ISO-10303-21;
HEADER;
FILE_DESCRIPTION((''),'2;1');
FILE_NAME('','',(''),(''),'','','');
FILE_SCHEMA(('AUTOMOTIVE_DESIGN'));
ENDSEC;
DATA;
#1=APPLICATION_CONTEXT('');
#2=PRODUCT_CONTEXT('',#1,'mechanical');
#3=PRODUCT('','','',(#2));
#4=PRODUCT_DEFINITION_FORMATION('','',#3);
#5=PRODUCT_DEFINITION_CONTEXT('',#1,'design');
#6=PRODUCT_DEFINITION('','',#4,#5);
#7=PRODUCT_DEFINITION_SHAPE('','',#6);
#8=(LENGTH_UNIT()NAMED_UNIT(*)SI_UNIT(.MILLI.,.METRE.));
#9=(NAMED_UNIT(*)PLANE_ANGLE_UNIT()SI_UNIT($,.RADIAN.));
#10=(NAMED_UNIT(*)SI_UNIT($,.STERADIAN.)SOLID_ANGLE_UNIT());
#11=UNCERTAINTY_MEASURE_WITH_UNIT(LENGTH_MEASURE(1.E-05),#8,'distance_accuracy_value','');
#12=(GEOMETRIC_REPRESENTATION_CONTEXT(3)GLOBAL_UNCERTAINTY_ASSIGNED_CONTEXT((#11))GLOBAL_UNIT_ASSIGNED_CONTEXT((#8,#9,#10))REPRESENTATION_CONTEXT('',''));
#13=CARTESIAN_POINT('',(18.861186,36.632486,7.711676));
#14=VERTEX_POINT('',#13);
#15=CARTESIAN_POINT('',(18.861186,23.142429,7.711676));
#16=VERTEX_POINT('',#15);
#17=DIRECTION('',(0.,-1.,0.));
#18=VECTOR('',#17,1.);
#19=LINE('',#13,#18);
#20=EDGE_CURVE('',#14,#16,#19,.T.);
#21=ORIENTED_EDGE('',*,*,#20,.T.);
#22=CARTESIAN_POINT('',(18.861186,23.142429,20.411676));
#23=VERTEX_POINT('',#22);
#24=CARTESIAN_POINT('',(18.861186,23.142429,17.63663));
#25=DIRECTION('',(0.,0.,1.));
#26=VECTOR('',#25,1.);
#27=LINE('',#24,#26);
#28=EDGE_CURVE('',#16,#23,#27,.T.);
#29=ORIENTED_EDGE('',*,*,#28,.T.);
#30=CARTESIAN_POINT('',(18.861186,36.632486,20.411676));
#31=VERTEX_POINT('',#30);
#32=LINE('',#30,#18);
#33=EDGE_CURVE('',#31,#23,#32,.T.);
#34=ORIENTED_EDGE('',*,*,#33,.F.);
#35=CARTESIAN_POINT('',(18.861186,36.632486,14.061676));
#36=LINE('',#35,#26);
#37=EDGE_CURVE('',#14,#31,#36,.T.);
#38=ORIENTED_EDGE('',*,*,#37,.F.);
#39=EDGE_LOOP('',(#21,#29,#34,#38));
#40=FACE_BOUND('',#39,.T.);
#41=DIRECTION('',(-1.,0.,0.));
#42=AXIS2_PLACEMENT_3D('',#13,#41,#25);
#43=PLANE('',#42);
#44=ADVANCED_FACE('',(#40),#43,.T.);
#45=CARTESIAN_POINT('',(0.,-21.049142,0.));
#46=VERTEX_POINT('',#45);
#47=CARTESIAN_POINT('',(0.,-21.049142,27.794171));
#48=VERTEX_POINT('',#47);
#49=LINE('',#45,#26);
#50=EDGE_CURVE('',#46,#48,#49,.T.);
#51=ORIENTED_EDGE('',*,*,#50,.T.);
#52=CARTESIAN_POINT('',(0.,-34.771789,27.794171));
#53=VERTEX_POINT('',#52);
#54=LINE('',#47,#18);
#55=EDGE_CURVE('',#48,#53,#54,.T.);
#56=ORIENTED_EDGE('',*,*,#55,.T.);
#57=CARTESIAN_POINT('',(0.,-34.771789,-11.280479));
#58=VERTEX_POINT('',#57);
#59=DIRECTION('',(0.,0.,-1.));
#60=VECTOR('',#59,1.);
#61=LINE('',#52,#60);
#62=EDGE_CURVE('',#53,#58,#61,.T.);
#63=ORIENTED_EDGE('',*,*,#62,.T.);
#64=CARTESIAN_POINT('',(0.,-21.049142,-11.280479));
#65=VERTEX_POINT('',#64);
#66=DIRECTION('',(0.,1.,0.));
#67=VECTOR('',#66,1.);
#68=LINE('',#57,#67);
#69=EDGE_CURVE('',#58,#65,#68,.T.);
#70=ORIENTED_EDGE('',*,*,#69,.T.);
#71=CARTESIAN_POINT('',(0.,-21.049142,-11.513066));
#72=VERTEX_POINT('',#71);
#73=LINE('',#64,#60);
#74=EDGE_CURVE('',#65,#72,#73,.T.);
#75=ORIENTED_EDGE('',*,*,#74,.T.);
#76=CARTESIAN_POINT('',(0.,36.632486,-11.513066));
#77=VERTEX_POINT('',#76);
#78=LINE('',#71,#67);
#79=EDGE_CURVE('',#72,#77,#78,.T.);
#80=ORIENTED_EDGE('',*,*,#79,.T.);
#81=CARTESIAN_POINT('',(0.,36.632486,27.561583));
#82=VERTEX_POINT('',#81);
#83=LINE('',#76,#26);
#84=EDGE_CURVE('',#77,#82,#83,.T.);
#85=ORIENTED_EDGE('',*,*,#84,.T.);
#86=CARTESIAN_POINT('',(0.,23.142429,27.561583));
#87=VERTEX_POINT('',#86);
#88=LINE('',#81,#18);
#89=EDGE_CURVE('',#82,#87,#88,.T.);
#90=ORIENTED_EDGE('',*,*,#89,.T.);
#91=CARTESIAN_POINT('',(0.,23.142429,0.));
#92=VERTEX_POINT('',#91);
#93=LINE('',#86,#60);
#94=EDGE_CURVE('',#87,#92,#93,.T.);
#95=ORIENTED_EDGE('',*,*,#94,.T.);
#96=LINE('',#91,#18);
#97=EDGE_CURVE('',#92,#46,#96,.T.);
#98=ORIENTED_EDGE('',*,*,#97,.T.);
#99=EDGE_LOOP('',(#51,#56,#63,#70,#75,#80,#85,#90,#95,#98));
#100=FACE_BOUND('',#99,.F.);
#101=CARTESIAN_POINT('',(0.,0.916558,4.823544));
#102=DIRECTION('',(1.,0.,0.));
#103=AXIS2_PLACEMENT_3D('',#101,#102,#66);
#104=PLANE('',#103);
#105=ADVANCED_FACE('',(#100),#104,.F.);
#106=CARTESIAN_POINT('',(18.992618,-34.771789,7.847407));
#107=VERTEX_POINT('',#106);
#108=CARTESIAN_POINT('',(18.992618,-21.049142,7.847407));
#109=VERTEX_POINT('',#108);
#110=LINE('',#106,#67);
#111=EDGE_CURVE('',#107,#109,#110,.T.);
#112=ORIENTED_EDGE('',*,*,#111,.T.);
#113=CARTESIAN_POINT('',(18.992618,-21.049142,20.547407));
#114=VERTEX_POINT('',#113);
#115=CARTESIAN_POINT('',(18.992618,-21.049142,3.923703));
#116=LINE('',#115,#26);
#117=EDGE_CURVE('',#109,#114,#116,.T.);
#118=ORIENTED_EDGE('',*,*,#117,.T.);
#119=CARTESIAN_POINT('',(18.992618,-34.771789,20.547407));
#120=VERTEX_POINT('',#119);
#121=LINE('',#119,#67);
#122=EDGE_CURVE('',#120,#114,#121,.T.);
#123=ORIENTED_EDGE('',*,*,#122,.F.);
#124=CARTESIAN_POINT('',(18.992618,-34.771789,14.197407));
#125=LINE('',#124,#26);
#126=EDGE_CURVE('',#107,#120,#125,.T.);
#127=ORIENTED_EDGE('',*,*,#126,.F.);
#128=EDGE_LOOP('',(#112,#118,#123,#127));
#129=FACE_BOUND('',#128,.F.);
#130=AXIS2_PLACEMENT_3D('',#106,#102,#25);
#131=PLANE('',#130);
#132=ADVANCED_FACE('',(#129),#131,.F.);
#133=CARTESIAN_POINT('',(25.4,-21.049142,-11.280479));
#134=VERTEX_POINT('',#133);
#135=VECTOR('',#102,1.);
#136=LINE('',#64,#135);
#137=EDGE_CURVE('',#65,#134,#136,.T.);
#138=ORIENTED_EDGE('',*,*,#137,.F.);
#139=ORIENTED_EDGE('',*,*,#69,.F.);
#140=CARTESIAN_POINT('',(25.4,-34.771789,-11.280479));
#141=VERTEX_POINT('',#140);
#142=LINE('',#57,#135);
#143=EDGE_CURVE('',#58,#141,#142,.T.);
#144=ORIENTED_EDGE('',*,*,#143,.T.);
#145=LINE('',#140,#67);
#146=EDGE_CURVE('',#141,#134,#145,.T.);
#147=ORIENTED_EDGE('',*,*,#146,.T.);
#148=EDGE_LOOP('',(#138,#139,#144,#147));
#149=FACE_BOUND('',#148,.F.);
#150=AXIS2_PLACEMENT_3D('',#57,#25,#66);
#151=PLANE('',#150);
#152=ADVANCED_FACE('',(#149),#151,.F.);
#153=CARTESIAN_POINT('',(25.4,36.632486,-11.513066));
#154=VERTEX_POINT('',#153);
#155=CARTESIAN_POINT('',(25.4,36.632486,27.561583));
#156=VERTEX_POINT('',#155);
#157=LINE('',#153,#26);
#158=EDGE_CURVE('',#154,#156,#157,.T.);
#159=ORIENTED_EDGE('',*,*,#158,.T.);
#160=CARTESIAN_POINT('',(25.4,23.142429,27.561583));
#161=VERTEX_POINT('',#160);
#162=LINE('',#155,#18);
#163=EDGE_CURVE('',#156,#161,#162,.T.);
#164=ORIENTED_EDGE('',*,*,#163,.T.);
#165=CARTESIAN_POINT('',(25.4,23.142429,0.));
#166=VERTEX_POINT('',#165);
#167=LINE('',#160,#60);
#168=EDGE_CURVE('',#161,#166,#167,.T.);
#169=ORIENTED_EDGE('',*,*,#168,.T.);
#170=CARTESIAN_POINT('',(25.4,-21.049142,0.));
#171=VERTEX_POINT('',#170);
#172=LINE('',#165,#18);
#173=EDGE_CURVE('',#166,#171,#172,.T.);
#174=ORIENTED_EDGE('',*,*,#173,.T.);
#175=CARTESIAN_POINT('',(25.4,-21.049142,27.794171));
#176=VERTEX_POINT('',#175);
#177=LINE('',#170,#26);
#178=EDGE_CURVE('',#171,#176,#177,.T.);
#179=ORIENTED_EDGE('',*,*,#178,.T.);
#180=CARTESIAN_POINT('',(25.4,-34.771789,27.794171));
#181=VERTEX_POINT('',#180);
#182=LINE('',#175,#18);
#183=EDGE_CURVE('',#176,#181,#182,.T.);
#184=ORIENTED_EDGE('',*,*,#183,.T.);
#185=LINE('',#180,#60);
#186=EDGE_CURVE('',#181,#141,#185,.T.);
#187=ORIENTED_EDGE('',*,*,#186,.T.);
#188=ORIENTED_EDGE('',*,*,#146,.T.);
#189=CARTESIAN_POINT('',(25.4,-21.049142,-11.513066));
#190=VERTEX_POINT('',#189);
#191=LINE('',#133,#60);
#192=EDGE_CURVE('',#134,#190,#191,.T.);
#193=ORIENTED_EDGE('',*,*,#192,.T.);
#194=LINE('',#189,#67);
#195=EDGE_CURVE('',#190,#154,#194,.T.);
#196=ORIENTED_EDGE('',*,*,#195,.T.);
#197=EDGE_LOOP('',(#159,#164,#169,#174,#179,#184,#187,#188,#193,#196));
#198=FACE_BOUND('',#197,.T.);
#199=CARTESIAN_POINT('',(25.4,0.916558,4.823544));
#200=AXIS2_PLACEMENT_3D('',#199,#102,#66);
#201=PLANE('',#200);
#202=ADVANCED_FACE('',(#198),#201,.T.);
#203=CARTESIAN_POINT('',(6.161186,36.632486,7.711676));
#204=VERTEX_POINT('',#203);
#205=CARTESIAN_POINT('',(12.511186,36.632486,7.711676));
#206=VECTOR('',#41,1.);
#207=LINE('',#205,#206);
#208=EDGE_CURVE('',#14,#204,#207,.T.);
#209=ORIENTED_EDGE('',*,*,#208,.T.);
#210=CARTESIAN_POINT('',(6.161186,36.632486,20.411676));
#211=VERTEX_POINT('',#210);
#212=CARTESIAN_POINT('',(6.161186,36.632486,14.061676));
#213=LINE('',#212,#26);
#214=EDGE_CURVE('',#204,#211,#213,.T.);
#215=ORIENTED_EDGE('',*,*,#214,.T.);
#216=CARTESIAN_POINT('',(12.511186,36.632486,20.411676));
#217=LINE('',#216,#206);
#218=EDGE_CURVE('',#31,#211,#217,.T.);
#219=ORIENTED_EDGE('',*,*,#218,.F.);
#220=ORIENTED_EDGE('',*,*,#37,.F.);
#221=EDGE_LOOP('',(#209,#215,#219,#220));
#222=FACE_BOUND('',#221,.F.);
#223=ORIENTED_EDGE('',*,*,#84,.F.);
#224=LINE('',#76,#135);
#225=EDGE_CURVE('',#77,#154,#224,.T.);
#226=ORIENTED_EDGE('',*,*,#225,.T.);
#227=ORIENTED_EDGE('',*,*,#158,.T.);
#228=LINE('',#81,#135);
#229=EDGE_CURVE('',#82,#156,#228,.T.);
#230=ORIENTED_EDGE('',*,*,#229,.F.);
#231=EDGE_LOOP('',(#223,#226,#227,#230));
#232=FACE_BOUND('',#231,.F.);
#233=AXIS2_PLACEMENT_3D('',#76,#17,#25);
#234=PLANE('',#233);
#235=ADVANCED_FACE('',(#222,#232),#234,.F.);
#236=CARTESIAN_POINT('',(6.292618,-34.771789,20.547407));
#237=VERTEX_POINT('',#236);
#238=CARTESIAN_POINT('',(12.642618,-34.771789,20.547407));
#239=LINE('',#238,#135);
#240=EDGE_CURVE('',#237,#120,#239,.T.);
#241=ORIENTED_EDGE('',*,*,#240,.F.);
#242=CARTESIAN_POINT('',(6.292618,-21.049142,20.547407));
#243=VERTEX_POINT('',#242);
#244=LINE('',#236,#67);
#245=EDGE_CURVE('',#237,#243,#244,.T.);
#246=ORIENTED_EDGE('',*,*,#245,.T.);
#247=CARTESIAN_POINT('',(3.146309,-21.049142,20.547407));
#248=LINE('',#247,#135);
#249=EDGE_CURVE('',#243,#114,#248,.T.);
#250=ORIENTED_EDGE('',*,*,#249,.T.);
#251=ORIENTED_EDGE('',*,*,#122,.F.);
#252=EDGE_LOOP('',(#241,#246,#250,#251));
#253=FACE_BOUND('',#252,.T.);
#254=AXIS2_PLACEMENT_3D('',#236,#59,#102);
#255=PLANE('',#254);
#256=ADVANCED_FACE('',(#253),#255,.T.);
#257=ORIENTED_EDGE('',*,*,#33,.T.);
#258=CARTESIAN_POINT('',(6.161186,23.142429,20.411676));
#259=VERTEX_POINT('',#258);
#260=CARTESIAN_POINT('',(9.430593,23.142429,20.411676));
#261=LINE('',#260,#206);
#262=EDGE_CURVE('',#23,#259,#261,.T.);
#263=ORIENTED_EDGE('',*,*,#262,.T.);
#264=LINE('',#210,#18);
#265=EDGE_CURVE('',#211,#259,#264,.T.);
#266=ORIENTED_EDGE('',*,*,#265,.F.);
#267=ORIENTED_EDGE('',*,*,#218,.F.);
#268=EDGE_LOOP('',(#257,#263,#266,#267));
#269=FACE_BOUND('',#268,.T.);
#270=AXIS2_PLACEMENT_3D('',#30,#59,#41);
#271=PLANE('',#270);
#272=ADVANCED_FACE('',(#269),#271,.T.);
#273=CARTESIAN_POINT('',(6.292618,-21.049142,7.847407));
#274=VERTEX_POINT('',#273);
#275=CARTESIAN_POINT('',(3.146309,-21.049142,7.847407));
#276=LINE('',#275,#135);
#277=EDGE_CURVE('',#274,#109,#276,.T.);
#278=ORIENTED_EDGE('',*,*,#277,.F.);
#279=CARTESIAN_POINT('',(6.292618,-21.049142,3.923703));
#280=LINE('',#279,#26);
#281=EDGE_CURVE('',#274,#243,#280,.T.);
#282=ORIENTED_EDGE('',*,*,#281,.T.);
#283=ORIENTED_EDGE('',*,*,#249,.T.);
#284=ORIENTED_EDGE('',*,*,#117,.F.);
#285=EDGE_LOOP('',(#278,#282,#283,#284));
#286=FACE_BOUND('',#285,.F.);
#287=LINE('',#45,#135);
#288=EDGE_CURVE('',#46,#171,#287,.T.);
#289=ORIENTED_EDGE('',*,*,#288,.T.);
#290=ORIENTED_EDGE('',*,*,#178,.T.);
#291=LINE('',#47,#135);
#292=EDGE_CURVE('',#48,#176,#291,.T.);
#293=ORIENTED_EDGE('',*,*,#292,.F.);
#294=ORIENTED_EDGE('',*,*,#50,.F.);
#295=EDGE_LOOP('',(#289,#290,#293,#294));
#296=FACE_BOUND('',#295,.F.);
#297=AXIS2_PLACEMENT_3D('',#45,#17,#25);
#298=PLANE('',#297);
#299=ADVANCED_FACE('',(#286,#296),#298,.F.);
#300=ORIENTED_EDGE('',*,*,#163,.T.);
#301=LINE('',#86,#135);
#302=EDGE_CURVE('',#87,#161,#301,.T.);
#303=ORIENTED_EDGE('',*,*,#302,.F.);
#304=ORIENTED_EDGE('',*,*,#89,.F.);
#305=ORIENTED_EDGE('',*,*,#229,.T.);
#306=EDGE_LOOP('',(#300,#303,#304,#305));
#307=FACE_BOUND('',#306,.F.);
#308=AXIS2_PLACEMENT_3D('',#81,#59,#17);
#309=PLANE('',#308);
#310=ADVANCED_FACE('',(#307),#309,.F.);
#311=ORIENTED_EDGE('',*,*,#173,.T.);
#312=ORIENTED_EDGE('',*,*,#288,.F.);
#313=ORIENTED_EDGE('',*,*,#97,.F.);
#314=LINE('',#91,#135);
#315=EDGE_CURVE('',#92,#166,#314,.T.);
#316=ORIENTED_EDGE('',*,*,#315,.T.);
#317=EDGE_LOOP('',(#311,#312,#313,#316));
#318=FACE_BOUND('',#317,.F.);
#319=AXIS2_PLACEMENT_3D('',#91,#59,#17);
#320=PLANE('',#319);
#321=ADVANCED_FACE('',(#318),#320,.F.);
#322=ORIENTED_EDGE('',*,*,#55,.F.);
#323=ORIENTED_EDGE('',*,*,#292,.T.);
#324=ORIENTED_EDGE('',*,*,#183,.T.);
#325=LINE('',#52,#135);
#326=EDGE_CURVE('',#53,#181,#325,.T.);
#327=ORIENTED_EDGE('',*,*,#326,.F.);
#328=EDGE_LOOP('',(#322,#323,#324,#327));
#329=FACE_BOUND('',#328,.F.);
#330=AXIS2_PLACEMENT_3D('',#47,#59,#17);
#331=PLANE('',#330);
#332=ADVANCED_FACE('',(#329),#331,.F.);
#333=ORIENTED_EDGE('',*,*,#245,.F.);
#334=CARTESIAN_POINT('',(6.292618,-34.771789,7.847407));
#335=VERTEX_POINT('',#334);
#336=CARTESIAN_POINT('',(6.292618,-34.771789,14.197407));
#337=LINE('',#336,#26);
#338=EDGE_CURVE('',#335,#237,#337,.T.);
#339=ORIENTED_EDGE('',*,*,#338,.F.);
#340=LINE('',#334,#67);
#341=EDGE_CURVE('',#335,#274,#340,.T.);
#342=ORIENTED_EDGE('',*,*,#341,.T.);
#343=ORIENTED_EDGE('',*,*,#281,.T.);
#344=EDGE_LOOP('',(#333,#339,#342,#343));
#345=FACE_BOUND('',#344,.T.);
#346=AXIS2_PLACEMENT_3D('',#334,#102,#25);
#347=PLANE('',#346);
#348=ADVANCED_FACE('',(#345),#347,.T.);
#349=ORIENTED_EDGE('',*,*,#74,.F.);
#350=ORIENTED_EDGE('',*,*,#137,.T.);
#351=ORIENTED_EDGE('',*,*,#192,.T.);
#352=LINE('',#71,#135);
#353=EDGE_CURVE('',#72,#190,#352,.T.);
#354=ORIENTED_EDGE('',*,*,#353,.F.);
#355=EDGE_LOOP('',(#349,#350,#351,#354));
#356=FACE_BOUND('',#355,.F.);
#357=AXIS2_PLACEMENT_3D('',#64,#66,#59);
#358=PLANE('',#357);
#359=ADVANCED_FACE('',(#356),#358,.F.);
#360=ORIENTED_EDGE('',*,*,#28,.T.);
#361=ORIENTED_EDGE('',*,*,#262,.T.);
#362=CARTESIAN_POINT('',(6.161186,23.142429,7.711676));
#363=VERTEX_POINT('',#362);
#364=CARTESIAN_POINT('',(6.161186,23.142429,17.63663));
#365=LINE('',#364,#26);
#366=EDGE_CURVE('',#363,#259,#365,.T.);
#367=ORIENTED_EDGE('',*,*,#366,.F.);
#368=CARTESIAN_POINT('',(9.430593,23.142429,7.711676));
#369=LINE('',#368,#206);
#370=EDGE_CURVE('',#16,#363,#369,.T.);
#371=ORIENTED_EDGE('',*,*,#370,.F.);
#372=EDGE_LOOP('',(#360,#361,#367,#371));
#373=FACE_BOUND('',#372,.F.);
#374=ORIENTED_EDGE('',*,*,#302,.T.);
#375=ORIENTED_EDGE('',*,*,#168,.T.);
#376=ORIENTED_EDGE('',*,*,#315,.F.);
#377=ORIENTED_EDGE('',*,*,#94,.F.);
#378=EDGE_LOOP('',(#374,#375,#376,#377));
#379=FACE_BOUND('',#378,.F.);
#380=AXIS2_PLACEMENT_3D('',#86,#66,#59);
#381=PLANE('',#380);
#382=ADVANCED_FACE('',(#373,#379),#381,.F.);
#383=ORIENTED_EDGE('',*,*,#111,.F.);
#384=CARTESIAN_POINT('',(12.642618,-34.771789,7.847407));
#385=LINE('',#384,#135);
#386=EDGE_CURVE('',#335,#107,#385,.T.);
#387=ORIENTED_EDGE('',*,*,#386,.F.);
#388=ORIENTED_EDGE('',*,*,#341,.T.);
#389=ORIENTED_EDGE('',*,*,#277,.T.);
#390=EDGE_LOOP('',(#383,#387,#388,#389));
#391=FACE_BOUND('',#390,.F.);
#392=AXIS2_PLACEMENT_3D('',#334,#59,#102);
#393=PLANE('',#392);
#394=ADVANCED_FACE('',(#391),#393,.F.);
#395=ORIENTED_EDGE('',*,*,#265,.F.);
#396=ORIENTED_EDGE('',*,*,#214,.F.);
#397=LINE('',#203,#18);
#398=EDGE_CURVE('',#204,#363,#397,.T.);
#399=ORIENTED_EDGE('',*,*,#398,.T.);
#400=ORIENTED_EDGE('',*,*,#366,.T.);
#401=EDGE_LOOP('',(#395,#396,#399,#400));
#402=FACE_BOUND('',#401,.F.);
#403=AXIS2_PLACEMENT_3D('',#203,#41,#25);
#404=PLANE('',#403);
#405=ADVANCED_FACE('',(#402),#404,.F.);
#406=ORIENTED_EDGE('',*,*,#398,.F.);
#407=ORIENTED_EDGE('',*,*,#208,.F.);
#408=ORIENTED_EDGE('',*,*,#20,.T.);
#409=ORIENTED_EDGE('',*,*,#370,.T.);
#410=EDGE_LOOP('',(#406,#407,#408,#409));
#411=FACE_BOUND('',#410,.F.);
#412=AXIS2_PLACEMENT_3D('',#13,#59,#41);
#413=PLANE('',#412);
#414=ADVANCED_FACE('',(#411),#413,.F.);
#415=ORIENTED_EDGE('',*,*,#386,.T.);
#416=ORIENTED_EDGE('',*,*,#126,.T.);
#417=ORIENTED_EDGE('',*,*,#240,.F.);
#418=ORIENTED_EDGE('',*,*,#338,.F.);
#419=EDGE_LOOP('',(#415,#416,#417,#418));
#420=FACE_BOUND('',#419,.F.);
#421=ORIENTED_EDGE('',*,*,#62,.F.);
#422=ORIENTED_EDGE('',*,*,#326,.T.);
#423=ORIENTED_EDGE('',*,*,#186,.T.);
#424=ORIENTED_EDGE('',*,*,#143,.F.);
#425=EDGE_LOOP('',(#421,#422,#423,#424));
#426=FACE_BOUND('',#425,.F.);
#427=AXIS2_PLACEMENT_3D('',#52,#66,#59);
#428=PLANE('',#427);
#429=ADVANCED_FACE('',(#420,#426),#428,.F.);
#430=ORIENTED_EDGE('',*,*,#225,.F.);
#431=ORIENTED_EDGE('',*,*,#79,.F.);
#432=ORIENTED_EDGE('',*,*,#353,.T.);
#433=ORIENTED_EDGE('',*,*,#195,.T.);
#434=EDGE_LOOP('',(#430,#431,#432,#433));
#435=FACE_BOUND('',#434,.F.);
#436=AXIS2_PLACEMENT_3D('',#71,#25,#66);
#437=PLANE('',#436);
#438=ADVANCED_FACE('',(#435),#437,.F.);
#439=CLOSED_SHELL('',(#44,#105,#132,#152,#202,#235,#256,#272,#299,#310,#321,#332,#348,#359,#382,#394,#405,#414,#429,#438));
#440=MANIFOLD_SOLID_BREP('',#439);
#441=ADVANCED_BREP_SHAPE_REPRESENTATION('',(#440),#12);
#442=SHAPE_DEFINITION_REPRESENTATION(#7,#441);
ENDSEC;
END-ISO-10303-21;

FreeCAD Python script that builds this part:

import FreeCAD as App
import Part
import Sketcher

V = App.Vector
Q = App.Units.Quantity


def add_polygon(sketch, points):
    """Adds a closed chain of lines whose ends are joined by coincident constraints."""
    first, n = sketch.GeometryCount, len(points)
    for a, b in zip(points, points[1:] + points[:1]):
        sketch.addGeometry(Part.LineSegment(App.Vector(*a, 0), App.Vector(*b, 0)), False)
    for i in range(n):
        sketch.addConstraint(Sketcher.Constraint("Coincident", first + i, 2, first + (i + 1) % n, 1))

doc = App.newDocument("Part")
body = doc.addObject("PartDesign::Body", "Body")

sketch1 = body.newObject("Sketcher::SketchObject", "Sketch")
sketch1.AttachmentSupport = (doc.getObject("YZ_Plane"), [""])
sketch1.MapMode = "FlatFace"
add_polygon(sketch1, [(-21.049142, 27.794171), (-34.771789, 27.794171), (-34.771789, -11.280479), (-21.049142, -11.280479), (-21.049142, -11.513066), (36.632486, -11.513066), (36.632486, 27.561583), (23.142429, 27.561583), (23.142429, 0), (-21.049142, 0)])
sketch1.addConstraint(Sketcher.Constraint("Horizontal", 0))
sketch1.addConstraint(Sketcher.Constraint("Vertical", 1))
sketch1.addConstraint(Sketcher.Constraint("Horizontal", 2))
sketch1.addConstraint(Sketcher.Constraint("Vertical", 3))
sketch1.addConstraint(Sketcher.Constraint("Horizontal", 4))
sketch1.addConstraint(Sketcher.Constraint("Vertical", 5))
sketch1.addConstraint(Sketcher.Constraint("Horizontal", 6))
sketch1.addConstraint(Sketcher.Constraint("Vertical", 7))
sketch1.addConstraint(Sketcher.Constraint("Horizontal", 8))
sketch1.addConstraint(Sketcher.Constraint("Vertical", 9))
sketch1.addConstraint(Sketcher.Constraint("PointOnObject", 7, 2, -1))
sketch1.addConstraint(Sketcher.Constraint("Vertical", 3, 2, 8, 2))
sketch1.addConstraint(Sketcher.Constraint("Equal", 1, 5))
sketch1.addConstraint(Sketcher.Constraint("DistanceX", 4, 1, 4, 2, 57.681628))
sketch1.addConstraint(Sketcher.Constraint("DistanceX", 8, 2, 8, 1, 44.191571))
sketch1.addConstraint(Sketcher.Constraint("DistanceY", 1, 2, 1, 1, 39.07465))
sketch1.addConstraint(Sketcher.Constraint("DistanceY", 9, 1, 9, 2, 27.794171))
sketch1.addConstraint(Sketcher.Constraint("DistanceX", 0, 2, 0, 1, 13.722647))
sketch1.addConstraint(Sketcher.Constraint("DistanceY", 3, 2, 3, 1, 0.232587))
sketch1.addConstraint(Sketcher.Constraint("DistanceX", 0, 2, -1, 1, 34.771789))
pad1 = body.newObject("PartDesign::Pad", "Pad")
pad1.Profile = sketch1
pad1.Length = Q("1 in")

sketch2 = body.newObject("Sketcher::SketchObject", "Sketch001")
sketch2.AttachmentSupport = (doc.getObject("YZ_Plane"), [""])
sketch2.MapMode = "FlatFace"
add_polygon(sketch2, [(-21.049142, 27.794171), (-34.771789, 27.794171), (-34.771789, -11.280479), (-21.049142, -11.280479), (-21.049142, -11.513066), (36.632486, -11.513066), (36.632486, 27.561583), (23.142429, 27.561583), (23.142429, 0), (-21.049142, 0)])
sketch2.addConstraint(Sketcher.Constraint("Horizontal", 0))
sketch2.addConstraint(Sketcher.Constraint("Vertical", 1))
sketch2.addConstraint(Sketcher.Constraint("Horizontal", 2))
sketch2.addConstraint(Sketcher.Constraint("Vertical", 3))
sketch2.addConstraint(Sketcher.Constraint("Horizontal", 4))
sketch2.addConstraint(Sketcher.Constraint("Vertical", 5))
sketch2.addConstraint(Sketcher.Constraint("Horizontal", 6))
sketch2.addConstraint(Sketcher.Constraint("Vertical", 7))
sketch2.addConstraint(Sketcher.Constraint("Horizontal", 8))
sketch2.addConstraint(Sketcher.Constraint("Vertical", 9))
sketch2.addConstraint(Sketcher.Constraint("PointOnObject", 7, 2, -1))
sketch2.addConstraint(Sketcher.Constraint("Vertical", 3, 2, 8, 2))
sketch2.addConstraint(Sketcher.Constraint("Equal", 1, 5))
sketch2.addConstraint(Sketcher.Constraint("DistanceX", 4, 1, 4, 2, 57.681628))
sketch2.addConstraint(Sketcher.Constraint("DistanceX", 8, 2, 8, 1, 44.191571))
sketch2.addConstraint(Sketcher.Constraint("DistanceY", 1, 2, 1, 1, 39.07465))
sketch2.addConstraint(Sketcher.Constraint("DistanceY", 9, 1, 9, 2, 27.794171))
sketch2.addConstraint(Sketcher.Constraint("DistanceX", 0, 2, 0, 1, 13.722647))
sketch2.addConstraint(Sketcher.Constraint("DistanceY", 3, 2, 3, 1, 0.232587))
sketch2.addConstraint(Sketcher.Constraint("DistanceX", 0, 2, -1, 1, 34.771789))
pad2 = body.newObject("PartDesign::Pad", "Pad001")
pad2.Profile = sketch2
pad2.Length = Q("1 in")

sketch3 = body.newObject("Sketcher::SketchObject", "Sketch002")
sketch3.AttachmentSupport = (doc.getObject("XZ_Plane"), [""])
sketch3.MapMode = "FlatFace"
sketch3.AttachmentOffset = App.Placement(V(0, 0, 34.771789), App.Rotation())
add_polygon(sketch3, [(6.292618, 20.547407), (6.292618, 7.847407), (18.992618, 7.847407), (18.992618, 20.547407)])
sketch3.addConstraint(Sketcher.Constraint("Vertical", 0))
sketch3.addConstraint(Sketcher.Constraint("Horizontal", 1))
sketch3.addConstraint(Sketcher.Constraint("Vertical", 2))
sketch3.addConstraint(Sketcher.Constraint("Horizontal", 3))
sketch3.addConstraint(Sketcher.Constraint("Equal", 3, 0))
sketch3.addConstraint(Sketcher.Constraint("DistanceX", 1, 1, 1, 2, Q("0.5 in")))
sketch3.addConstraint(Sketcher.Constraint("DistanceX", -1, 1, 1, 2, 18.992618))
sketch3.addConstraint(Sketcher.Constraint("DistanceY", -1, 1, 0, 2, 7.847407))
pocket1 = body.newObject("PartDesign::Pocket", "Pocket")
pocket1.Profile = sketch3
pocket1.Length = Q("2 in")

sketch4 = body.newObject("Sketcher::SketchObject", "Sketch003")
sketch4.AttachmentSupport = (doc.getObject("XZ_Plane"), [""])
sketch4.MapMode = "FlatFace"
sketch4.AttachmentOffset = App.Placement(V(0, 0, -36.632486), App.Rotation())
add_polygon(sketch4, [(18.861186, 20.411676), (18.861186, 7.711676), (6.161186, 7.711676), (6.161186, 20.411676)])
sketch4.addConstraint(Sketcher.Constraint("Vertical", 0))
sketch4.addConstraint(Sketcher.Constraint("Horizontal", 1))
sketch4.addConstraint(Sketcher.Constraint("Vertical", 2))
sketch4.addConstraint(Sketcher.Constraint("Horizontal", 3))
sketch4.addConstraint(Sketcher.Constraint("Equal", 3, 0))
sketch4.addConstraint(Sketcher.Constraint("DistanceX", 1, 2, 1, 1, Q("0.5 in")))
sketch4.addConstraint(Sketcher.Constraint("DistanceX", -1, 1, 0, 2, 18.861186))
sketch4.addConstraint(Sketcher.Constraint("DistanceY", -1, 1, 0, 2, 7.711676))
pocket2 = body.newObject("PartDesign::Pocket", "Pocket001")
pocket2.Profile = sketch4
pocket2.Length = Q("2 in")
pocket2.Reversed = True

doc.recompute()
